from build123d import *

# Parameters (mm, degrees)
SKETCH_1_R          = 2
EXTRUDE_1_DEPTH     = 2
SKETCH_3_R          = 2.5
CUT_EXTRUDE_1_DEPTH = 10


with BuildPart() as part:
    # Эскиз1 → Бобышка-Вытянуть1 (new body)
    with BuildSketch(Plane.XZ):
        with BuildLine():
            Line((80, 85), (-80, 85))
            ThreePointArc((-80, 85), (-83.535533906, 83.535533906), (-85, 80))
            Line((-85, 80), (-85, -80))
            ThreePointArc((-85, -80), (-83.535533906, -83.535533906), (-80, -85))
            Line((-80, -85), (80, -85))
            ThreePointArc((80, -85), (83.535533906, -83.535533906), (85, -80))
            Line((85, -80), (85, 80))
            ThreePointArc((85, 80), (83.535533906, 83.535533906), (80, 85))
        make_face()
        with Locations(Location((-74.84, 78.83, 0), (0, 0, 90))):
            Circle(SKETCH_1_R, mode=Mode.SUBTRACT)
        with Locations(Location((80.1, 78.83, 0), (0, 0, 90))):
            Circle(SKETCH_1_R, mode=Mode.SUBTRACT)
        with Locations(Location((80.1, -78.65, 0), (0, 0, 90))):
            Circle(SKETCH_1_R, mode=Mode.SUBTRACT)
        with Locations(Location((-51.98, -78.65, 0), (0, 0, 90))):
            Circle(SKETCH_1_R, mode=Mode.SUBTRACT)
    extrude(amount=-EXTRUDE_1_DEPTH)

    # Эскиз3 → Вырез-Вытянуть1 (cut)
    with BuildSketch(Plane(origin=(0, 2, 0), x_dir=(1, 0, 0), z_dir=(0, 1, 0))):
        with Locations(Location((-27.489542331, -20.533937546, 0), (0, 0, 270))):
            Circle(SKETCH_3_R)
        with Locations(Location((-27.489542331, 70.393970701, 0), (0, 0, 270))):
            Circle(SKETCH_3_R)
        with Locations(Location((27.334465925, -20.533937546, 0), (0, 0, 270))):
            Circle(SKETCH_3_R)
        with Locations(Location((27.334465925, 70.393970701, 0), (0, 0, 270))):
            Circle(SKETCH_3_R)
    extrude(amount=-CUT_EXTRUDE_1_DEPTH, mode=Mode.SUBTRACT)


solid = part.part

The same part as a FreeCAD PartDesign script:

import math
import FreeCAD as App
import Part
import Sketcher
from FreeCAD import Vector
Q = App.Units.Quantity

doc = App.newDocument("Part")
body = doc.addObject("PartDesign::Body", "Body")

# Sketch on XZ plane
sketch1 = body.newObject("Sketcher::SketchObject", "Sketch")
sketch1.AttachmentSupport = (doc.getObject("XZ_Plane"), [""])
sketch1.MapMode = "FlatFace"
sketch1.addGeometry([
    Part.LineSegment(Vector(80, 85, 0), Vector(-80, 85, 0)),  # 0
    Part.ArcOfCircle(Part.Circle(Vector(-80, 80, 0), Vector(0, 0, 1), 5), math.radians(90), math.radians(180)),  # 1
    Part.LineSegment(Vector(-85, 80, 0), Vector(-85, -80, 0)),  # 2
    Part.ArcOfCircle(Part.Circle(Vector(-80, -80, 0), Vector(0, 0, 1), 5), math.radians(180), math.radians(270)),  # 3
    Part.LineSegment(Vector(-80, -85, 0), Vector(80, -85, 0)),  # 4
    Part.ArcOfCircle(Part.Circle(Vector(80, -80, 0), Vector(0, 0, 1), 5), math.radians(-90), math.radians(0)),  # 5
    Part.LineSegment(Vector(85, -80, 0), Vector(85, 80, 0)),  # 6
    Part.ArcOfCircle(Part.Circle(Vector(80, 80, 0), Vector(0, 0, 1), 5), math.radians(0), math.radians(90)),  # 7
    Part.Circle(Vector(-52, -78.7, 0), Vector(0, 0, 1), 2),  # 8
    Part.Circle(Vector(80.1, -78.7, 0), Vector(0, 0, 1), 2),  # 9
    Part.Circle(Vector(-74.8, 78.8, 0), Vector(0, 0, 1), 2),  # 10
    Part.Circle(Vector(80.1, 78.8, 0), Vector(0, 0, 1), 2),  # 11
], False)
sketch1.addConstraint([
    Sketcher.Constraint("Tangent", 0, 2, 1, 1),
    Sketcher.Constraint("Tangent", 1, 2, 2, 1),
    Sketcher.Constraint("Tangent", 2, 2, 3, 1),
    Sketcher.Constraint("Tangent", 3, 2, 4, 1),
    Sketcher.Constraint("Tangent", 4, 2, 5, 1),
    Sketcher.Constraint("Tangent", 5, 2, 6, 1),
    Sketcher.Constraint("Tangent", 6, 2, 7, 1),
    Sketcher.Constraint("Tangent", 7, 2, 0, 1),
    Sketcher.Constraint("Horizontal", 0),
    Sketcher.Constraint("Vertical", 2),
    Sketcher.Constraint("Horizontal", 4),
    Sketcher.Constraint("Vertical", 6),
    Sketcher.Constraint("Equal", 1, 3),
    Sketcher.Constraint("Equal", 3, 5),
    Sketcher.Constraint("Equal", 5, 7),
    Sketcher.Constraint("Equal", 8, 9),
    Sketcher.Constraint("Equal", 9, 10),
    Sketcher.Constraint("Equal", 10, 11),
    Sketcher.Constraint("Symmetric", 1, 3, 5, 3, -1, 1),
    Sketcher.Constraint("Horizontal", 8, 3, 9, 3),
    Sketcher.Constraint("Horizontal", 10, 3, 11, 3),
    Sketcher.Constraint("Vertical", 9, 3, 11, 3),
    Sketcher.Constraint("Equal", 4, 2),
    Sketcher.Constraint("Diameter", 8, Q("4 mm")),
    Sketcher.Constraint("Radius", 1, Q("5 mm")),
    Sketcher.Constraint("DistanceX", 0, 2, 0, 1, Q("160 mm")),
    Sketcher.Constraint("DistanceX", -1, 1, 9, 3, Q("80.1 mm")),
    Sketcher.Constraint("DistanceX", 8, 3, -1, 1, Q("51.98 mm")),
    Sketcher.Constraint("DistanceY", 8, 3, -1, 1, Q("78.65 mm")),
    Sketcher.Constraint("DistanceX", 10, 3, -1, 1, Q("74.84 mm")),
    Sketcher.Constraint("DistanceY", -1, 1, 10, 3, Q("78.83 mm")),
])
pad1 = body.newObject("PartDesign::Pad", "Pad")
pad1.Profile = sketch1
pad1.Length = 2
pad1.Reversed = True

# Sketch on XZ plane
sketch2 = body.newObject("Sketcher::SketchObject", "Sketch001")
sketch2.AttachmentSupport = (doc.getObject("XZ_Plane"), [""])
sketch2.MapMode = "FlatFace"
sketch2.AttachmentOffset = App.Placement(Vector(0, 0, -2), App.Rotation())
sketch2.addGeometry([
    Part.Circle(Vector(-27.5, 20.5, 0), Vector(0, 0, 1), 2.5),
    Part.Circle(Vector(-27.5, -70.4, 0), Vector(0, 0, 1), 2.5),
    Part.Circle(Vector(27.3, 20.5, 0), Vector(0, 0, 1), 2.5),
    Part.Circle(Vector(27.3, -70.4, 0), Vector(0, 0, 1), 2.5),
], False)
sketch2.addConstraint([
    Sketcher.Constraint("Equal", 0, 1),
    Sketcher.Constraint("Equal", 1, 2),
    Sketcher.Constraint("Equal", 2, 3),
    Sketcher.Constraint("Horizontal", 0, 3, 2, 3),
    Sketcher.Constraint("Horizontal", 1, 3, 3, 3),
    Sketcher.Constraint("Vertical", 0, 3, 1, 3),
    Sketcher.Constraint("Vertical", 2, 3, 3, 3),
    Sketcher.Constraint("Diameter", 0, Q("5 mm")),
    Sketcher.Constraint("DistanceY", 1, 3, -1, 1, Q("70.393971 mm")),
    Sketcher.Constraint("DistanceY", 1, 3, 0, 3, Q("90.927908 mm")),
    Sketcher.Constraint("DistanceX", 0, 3, 2, 3, Q("54.824008 mm")),
    Sketcher.Constraint("DistanceX", 0, 3, -1, 1, Q("27.489542 mm")),
])
pocket1 = body.newObject("PartDesign::Pocket", "Pocket")
pocket1.Profile = sketch2
pocket1.Length = 10
pocket1.Reversed = True

doc.recompute()
